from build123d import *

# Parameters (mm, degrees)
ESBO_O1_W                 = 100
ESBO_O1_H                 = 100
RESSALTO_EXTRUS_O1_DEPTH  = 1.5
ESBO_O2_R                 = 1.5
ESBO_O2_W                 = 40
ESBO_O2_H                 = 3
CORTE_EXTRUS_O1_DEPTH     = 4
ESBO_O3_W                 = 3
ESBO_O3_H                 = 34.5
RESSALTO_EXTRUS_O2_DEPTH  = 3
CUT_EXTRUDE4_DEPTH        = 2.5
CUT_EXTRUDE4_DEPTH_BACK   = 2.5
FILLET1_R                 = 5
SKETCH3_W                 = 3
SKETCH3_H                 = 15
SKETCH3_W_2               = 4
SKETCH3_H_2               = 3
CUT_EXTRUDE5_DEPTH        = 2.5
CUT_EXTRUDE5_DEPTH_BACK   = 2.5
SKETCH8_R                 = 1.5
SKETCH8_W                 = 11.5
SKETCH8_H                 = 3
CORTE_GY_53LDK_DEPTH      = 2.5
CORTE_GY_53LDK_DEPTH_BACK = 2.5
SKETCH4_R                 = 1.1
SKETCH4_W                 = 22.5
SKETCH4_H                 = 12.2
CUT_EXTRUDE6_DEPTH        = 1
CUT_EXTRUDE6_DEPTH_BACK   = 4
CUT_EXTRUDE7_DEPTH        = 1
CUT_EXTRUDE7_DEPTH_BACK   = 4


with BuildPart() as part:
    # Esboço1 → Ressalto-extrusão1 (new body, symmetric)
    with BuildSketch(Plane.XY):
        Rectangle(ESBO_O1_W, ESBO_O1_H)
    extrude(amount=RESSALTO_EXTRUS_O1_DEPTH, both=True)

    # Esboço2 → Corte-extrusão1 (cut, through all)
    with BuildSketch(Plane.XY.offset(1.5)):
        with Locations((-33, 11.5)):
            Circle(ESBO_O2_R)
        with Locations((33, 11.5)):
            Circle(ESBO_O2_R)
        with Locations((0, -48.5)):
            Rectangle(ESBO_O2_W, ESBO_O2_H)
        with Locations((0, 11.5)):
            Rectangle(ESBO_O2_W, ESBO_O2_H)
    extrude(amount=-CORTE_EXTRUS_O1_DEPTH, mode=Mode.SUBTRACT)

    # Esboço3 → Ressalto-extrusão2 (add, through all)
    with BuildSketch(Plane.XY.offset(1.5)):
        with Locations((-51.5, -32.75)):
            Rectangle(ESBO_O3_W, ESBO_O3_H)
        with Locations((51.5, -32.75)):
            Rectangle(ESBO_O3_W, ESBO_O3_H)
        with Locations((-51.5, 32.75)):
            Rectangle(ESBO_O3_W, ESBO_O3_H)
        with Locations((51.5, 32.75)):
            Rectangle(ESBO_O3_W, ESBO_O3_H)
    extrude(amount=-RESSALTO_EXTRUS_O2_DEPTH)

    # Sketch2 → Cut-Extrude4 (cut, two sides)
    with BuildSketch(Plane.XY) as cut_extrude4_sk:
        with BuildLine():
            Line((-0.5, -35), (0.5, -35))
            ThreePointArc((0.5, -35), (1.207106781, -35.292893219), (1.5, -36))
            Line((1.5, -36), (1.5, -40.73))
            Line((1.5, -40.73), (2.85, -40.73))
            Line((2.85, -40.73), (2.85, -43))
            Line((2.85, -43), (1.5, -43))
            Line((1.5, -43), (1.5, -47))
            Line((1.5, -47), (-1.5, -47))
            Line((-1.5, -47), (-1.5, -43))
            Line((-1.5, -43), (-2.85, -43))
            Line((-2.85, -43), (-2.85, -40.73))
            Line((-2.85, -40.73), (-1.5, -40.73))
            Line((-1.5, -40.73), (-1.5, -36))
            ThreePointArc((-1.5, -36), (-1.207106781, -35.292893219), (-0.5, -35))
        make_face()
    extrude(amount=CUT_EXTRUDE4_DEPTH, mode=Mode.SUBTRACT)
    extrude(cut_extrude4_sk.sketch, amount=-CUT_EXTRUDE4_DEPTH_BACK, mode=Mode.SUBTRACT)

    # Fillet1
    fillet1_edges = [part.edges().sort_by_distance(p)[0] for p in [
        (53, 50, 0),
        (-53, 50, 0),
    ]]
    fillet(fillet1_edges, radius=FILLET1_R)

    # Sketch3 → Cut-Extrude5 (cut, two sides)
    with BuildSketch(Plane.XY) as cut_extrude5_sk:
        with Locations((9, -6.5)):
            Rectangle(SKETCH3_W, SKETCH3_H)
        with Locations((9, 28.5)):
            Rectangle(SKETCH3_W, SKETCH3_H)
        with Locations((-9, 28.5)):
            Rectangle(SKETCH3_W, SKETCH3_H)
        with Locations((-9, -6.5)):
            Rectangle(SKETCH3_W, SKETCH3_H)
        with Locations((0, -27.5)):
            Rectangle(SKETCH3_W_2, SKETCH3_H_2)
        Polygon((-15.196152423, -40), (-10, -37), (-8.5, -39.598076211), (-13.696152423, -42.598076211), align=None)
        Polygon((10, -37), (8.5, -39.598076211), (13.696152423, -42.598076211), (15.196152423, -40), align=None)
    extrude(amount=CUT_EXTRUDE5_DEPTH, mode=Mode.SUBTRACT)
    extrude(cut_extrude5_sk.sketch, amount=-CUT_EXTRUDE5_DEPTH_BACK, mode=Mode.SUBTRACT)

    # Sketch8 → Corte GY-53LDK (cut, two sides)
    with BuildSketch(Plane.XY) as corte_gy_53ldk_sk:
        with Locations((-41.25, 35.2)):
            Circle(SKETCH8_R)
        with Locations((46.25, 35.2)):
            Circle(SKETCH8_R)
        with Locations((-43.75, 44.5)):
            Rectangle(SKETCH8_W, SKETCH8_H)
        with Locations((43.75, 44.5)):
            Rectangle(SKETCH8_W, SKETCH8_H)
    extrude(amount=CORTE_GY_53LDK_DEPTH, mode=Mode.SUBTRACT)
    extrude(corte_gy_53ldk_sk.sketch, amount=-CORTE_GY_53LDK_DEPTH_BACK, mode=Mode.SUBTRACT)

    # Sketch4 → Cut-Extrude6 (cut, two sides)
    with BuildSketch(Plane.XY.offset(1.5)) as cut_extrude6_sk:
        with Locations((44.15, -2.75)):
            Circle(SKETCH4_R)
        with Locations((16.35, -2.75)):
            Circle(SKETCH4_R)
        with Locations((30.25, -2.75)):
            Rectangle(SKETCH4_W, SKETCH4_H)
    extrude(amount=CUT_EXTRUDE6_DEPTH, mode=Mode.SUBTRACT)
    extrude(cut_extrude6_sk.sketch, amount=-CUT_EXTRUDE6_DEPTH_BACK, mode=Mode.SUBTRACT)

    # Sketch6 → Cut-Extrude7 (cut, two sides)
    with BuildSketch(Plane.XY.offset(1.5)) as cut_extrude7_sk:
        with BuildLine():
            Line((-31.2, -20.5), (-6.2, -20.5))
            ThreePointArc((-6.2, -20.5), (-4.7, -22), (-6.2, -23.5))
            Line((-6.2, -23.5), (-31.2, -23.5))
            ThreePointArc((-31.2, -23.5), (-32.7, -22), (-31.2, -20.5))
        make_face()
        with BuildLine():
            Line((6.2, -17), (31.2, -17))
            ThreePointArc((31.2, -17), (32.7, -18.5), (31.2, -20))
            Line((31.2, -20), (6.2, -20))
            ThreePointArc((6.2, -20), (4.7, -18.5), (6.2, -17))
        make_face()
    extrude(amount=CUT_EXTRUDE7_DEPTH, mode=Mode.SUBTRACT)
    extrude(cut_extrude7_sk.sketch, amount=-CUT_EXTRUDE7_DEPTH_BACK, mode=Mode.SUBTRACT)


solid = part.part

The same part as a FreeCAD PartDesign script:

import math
import FreeCAD as App
import Part
import Sketcher
from FreeCAD import Vector
Q = App.Units.Quantity


def edges_at(feature, points):
    """Names of the edges that pass closest to the given points."""
    edges = feature.Shape.Edges
    near = lambda p: min(range(len(edges)), key=lambda i: edges[i].distToShape(Part.Vertex(*p))[0])
    return sorted({f"Edge{near(p) + 1}" for p in points})


def add_polygon(sketch, points):
    """Adds a closed chain of lines whose ends are joined by coincident constraints."""
    first, n = sketch.GeometryCount, len(points)
    for a, b in zip(points, points[1:] + points[:1]):
        sketch.addGeometry(Part.LineSegment(App.Vector(*a, 0), App.Vector(*b, 0)), False)
    for i in range(n):
        sketch.addConstraint(Sketcher.Constraint("Coincident", first + i, 2, first + (i + 1) % n, 1))

doc = App.newDocument("Part")
body = doc.addObject("PartDesign::Body", "Body")

# Sketch on XY plane
sketch1 = doc.addObject("Sketcher::SketchObject", "Sketch")
body.addObject(sketch1)
sketch1.AttachmentSupport = (doc.XY_Plane, [""])
sketch1.MapMode = "FlatFace"
add_polygon(sketch1, [(-50, 50), (-50, -50), (50, -50), (50, 50)])  # lines 0-3
sketch1.addConstraint([
    Sketcher.Constraint("Vertical", 0),
    Sketcher.Constraint("Horizontal", 1),
    Sketcher.Constraint("Vertical", 2),
    Sketcher.Constraint("Horizontal", 3),
    Sketcher.Constraint("Symmetric", 0, 2, 2, 2, -1, 1),
    Sketcher.Constraint("Equal", 3, 0),
    Sketcher.Constraint("DistanceX", 1, 1, 1, 2, 100.0),
])
pad1 = doc.addObject("PartDesign::Pad", "Pad")
body.addObject(pad1)
pad1.Profile = sketch1
pad1.Length = 3
pad1.Midplane = True

# Sketch on XY plane
sketch2 = doc.addObject("Sketcher::SketchObject", "Sketch001")
body.addObject(sketch2)
sketch2.AttachmentSupport = (doc.XY_Plane, [""])
sketch2.MapMode = "FlatFace"
sketch2.AttachmentOffset = App.Placement(Vector(0, 0, 1.5), App.Rotation())
sketch2.addGeometry(Part.Circle(Vector(-33, 11.5, 0), Vector(0, 0, 1), 1.5), False)  # 0
sketch2.addGeometry(Part.Circle(Vector(33, 11.5, 0), Vector(0, 0, 1), 1.5), False)  # 1
add_polygon(sketch2, [(-20, -47), (-20, -50), (20, -50), (20, -47)])  # lines 2-5
add_polygon(sketch2, [(-20, 13), (-20, 10), (20, 10), (20, 13)])  # lines 6-9
sketch2.addConstraint([
    Sketcher.Constraint("Vertical", 2),
    Sketcher.Constraint("Horizontal", 3),
    Sketcher.Constraint("Vertical", 4),
    Sketcher.Constraint("Horizontal", 5),
    Sketcher.Constraint("Vertical", 6),
    Sketcher.Constraint("Horizontal", 7),
    Sketcher.Constraint("Vertical", 8),
    Sketcher.Constraint("Horizontal", 9),
    Sketcher.Constraint("Equal", 0, 1),
    Sketcher.Constraint("Symmetric", 0, 3, 1, 3, -2),
    Sketcher.Constraint("Vertical", 5, 2, 6, 2),
    Sketcher.Constraint("Vertical", 4, 2, 7, 2),
    Sketcher.Constraint("Equal", 4, 6),
    Sketcher.Constraint("Diameter", 0, 3.0),
    Sketcher.Constraint("DistanceX", 3, 1, 3, 2, 40.0),
    Sketcher.Constraint("DistanceY", 2, 2, 2, 1, 3.0),
    Sketcher.Constraint("DistanceX", 0, 3, -1, 1, 33.0),
    Sketcher.Constraint("DistanceX", 2, 2, -1, 1, 20.0),
    Sketcher.Constraint("DistanceY", 2, 2, -1, 1, 50.0),
    Sketcher.Constraint("DistanceY", -1, 1, 6, 2, 10.0),
    Sketcher.Constraint("DistanceY", -1, 1, 0, 3, 11.5),
])
pocket1 = doc.addObject("PartDesign::Pocket", "Pocket")
body.addObject(pocket1)
pocket1.Profile = sketch2
pocket1.Type = "ThroughAll"

# Sketch on XY plane
sketch3 = doc.addObject("Sketcher::SketchObject", "Sketch002")
body.addObject(sketch3)
sketch3.AttachmentSupport = (doc.XY_Plane, [""])
sketch3.MapMode = "FlatFace"
sketch3.AttachmentOffset = App.Placement(Vector(0, 0, 1.5), App.Rotation())
add_polygon(sketch3, [(-53, -15.5), (-53, -50), (-50, -50), (-50, -15.5)])  # lines 0-3
add_polygon(sketch3, [(50, -15.5), (50, -50), (53, -50), (53, -15.5)])  # lines 4-7
add_polygon(sketch3, [(-53, 50), (-53, 15.5), (-50, 15.5), (-50, 50)])  # lines 8-11
add_polygon(sketch3, [(50, 50), (50, 15.5), (53, 15.5), (53, 50)])  # lines 12-15
sketch3.addConstraint([
    Sketcher.Constraint("Vertical", 0),
    Sketcher.Constraint("Horizontal", 1),
    Sketcher.Constraint("Vertical", 2),
    Sketcher.Constraint("Horizontal", 3),
    Sketcher.Constraint("Vertical", 4),
    Sketcher.Constraint("Horizontal", 5),
    Sketcher.Constraint("Vertical", 6),
    Sketcher.Constraint("Horizontal", 7),
    Sketcher.Constraint("Vertical", 8),
    Sketcher.Constraint("Horizontal", 9),
    Sketcher.Constraint("Vertical", 10),
    Sketcher.Constraint("Horizontal", 11),
    Sketcher.Constraint("Vertical", 12),
    Sketcher.Constraint("Horizontal", 13),
    Sketcher.Constraint("Vertical", 14),
    Sketcher.Constraint("Horizontal", 15),
    Sketcher.Constraint("Symmetric", 6, 2, 8, 2, -1, 1),
    Sketcher.Constraint("Symmetric", 4, 2, 10, 2, -1, 1),
    Sketcher.Constraint("Symmetric", 2, 2, 12, 2, -1, 1),
    Sketcher.Constraint("Symmetric", 0, 2, 14, 2, -1, 1),
    Sketcher.Constraint("Symmetric", 1, 2, 4, 2, -2),
    Sketcher.Constraint("Symmetric", 3, 2, 6, 2, -2),
    Sketcher.Constraint("DistanceX", 1, 1, 1, 2, 3.0),
    Sketcher.Constraint("DistanceY", 0, 2, 0, 1, 34.5),
    Sketcher.Constraint("DistanceX", 0, 2, -1, 1, 53.0),
    Sketcher.Constraint("DistanceY", 0, 2, -1, 1, 50.0),
])
pad2 = doc.addObject("PartDesign::Pad", "Pad001")
body.addObject(pad2)
pad2.Profile = sketch3
pad2.Type = "UpToLast"
pad2.Reversed = True

# Sketch on XY plane
sketch4 = doc.addObject("Sketcher::SketchObject", "Sketch003")
body.addObject(sketch4)
sketch4.AttachmentSupport = (doc.XY_Plane, [""])
sketch4.MapMode = "FlatFace"
sketch4.addGeometry([
    Part.LineSegment(Vector(0.5, -35, 0), Vector(-0.5, -35, 0)),  # 0
    Part.ArcOfCircle(Part.Circle(Vector(-0.5, -36, 0), Vector(0, 0, 1), 1), math.radians(90), math.radians(180)),  # 1
    Part.LineSegment(Vector(-1.5, -36, 0), Vector(-1.5, -40.7, 0)),  # 2
    Part.LineSegment(Vector(-1.5, -40.7, 0), Vector(-2.9, -40.7, 0)),  # 3
    Part.LineSegment(Vector(-2.9, -40.7, 0), Vector(-2.9, -43, 0)),  # 4
    Part.LineSegment(Vector(-2.9, -43, 0), Vector(-1.5, -43, 0)),  # 5
    Part.LineSegment(Vector(-1.5, -43, 0), Vector(-1.5, -47, 0)),  # 6
    Part.LineSegment(Vector(-1.5, -47, 0), Vector(1.5, -47, 0)),  # 7
    Part.LineSegment(Vector(1.5, -47, 0), Vector(1.5, -43, 0)),  # 8
    Part.LineSegment(Vector(1.5, -43, 0), Vector(2.9, -43, 0)),  # 9
    Part.LineSegment(Vector(2.9, -43, 0), Vector(2.9, -40.7, 0)),  # 10
    Part.LineSegment(Vector(2.9, -40.7, 0), Vector(1.5, -40.7, 0)),  # 11
    Part.LineSegment(Vector(1.5, -40.7, 0), Vector(1.5, -36, 0)),  # 12
    Part.ArcOfCircle(Part.Circle(Vector(0.5, -36, 0), Vector(0, 0, 1), 1), math.radians(0), math.radians(90)),  # 13
], False)
sketch4.addConstraint([
    Sketcher.Constraint("Tangent", 0, 2, 1, 1),
    Sketcher.Constraint("Tangent", 1, 2, 2, 1),
    Sketcher.Constraint("Coincident", 2, 2, 3, 1),
    Sketcher.Constraint("Coincident", 3, 2, 4, 1),
    Sketcher.Constraint("Coincident", 4, 2, 5, 1),
    Sketcher.Constraint("Coincident", 5, 2, 6, 1),
    Sketcher.Constraint("Coincident", 6, 2, 7, 1),
    Sketcher.Constraint("Coincident", 7, 2, 8, 1),
    Sketcher.Constraint("Coincident", 8, 2, 9, 1),
    Sketcher.Constraint("Coincident", 9, 2, 10, 1),
    Sketcher.Constraint("Coincident", 10, 2, 11, 1),
    Sketcher.Constraint("Coincident", 11, 2, 12, 1),
    Sketcher.Constraint("Tangent", 12, 2, 13, 1),
    Sketcher.Constraint("Tangent", 13, 2, 0, 1),
    Sketcher.Constraint("Horizontal", 0),
    Sketcher.Constraint("Vertical", 2),
    Sketcher.Constraint("Horizontal", 3),
    Sketcher.Constraint("Vertical", 4),
    Sketcher.Constraint("Horizontal", 5),
    Sketcher.Constraint("Vertical", 6),
    Sketcher.Constraint("Horizontal", 7),
    Sketcher.Constraint("Vertical", 8),
    Sketcher.Constraint("Horizontal", 9),
    Sketcher.Constraint("Vertical", 10),
    Sketcher.Constraint("Horizontal", 11),
    Sketcher.Constraint("Vertical", 12),
    Sketcher.Constraint("Equal", 1, 13),
    Sketcher.Constraint("Symmetric", 5, 2, 8, 2, -2),
    Sketcher.Constraint("Symmetric", 3, 2, 10, 2, -2),
    Sketcher.Constraint("Vertical", 2, 2, 5, 2),
    Sketcher.Constraint("Vertical", 8, 2, 11, 2),
    Sketcher.Constraint("Radius", 1, 1.0),
    Sketcher.Constraint("DistanceX", 0, 2, 0, 1, 1.0),
    Sketcher.Constraint("DistanceY", 6, 2, 6, 1, 4.0),
    Sketcher.Constraint("DistanceY", 1, 3, -1, 1, 36.0),
    Sketcher.Constraint("DistanceY", 4, 2, -1, 1, 43.0),
    Sketcher.Constraint("DistanceX", 3, 2, 3, 1, 1.35),
    Sketcher.Constraint("DistanceY", 2, 2, 2, 1, 4.73),
])
pocket2 = doc.addObject("PartDesign::Pocket", "Pocket001")
body.addObject(pocket2)
pocket2.Profile = sketch4
pocket2.Type = "ThroughAll"
pocket2.Midplane = True
doc.recompute()

fillet = doc.addObject("PartDesign::Fillet", "Fillet")
body.addObject(fillet)
fillet.Base = (pocket2, edges_at(pocket2, [(53, 50, 0), (-53, 50, 0)]))
fillet.Radius = 5

# Sketch on XY plane
sketch5 = doc.addObject("Sketcher::SketchObject", "Sketch004")
body.addObject(sketch5)
sketch5.AttachmentSupport = (doc.XY_Plane, [""])
sketch5.MapMode = "FlatFace"
add_polygon(sketch5, [(7.5, 1), (7.5, -14), (10.5, -14), (10.5, 1)])  # lines 0-3
add_polygon(sketch5, [(7.5, 36), (7.5, 21), (10.5, 21), (10.5, 36)])  # lines 4-7
add_polygon(sketch5, [(-10.5, 36), (-10.5, 21), (-7.5, 21), (-7.5, 36)])  # lines 8-11
add_polygon(sketch5, [(-10.5, 1), (-10.5, -14), (-7.5, -14), (-7.5, 1)])  # lines 12-15
add_polygon(sketch5, [(-2, -26), (-2, -29), (2, -29), (2, -26)])  # lines 16-19
add_polygon(sketch5, [(-10, -37), (-15.2, -40), (-13.7, -42.6), (-8.5, -39.6)])  # lines 20-23
add_polygon(sketch5, [(10, -37), (8.5, -39.6), (13.7, -42.6), (15.2, -40)])  # lines 24-27
sketch5.addConstraint([
    Sketcher.Constraint("Vertical", 0),
    Sketcher.Constraint("Horizontal", 1),
    Sketcher.Constraint("Vertical", 2),
    Sketcher.Constraint("Horizontal", 3),
    Sketcher.Constraint("Vertical", 4),
    Sketcher.Constraint("Horizontal", 5),
    Sketcher.Constraint("Vertical", 6),
    Sketcher.Constraint("Horizontal", 7),
    Sketcher.Constraint("Vertical", 8),
    Sketcher.Constraint("Horizontal", 9),
    Sketcher.Constraint("Vertical", 10),
    Sketcher.Constraint("Horizontal", 11),
    Sketcher.Constraint("Vertical", 12),
    Sketcher.Constraint("Horizontal", 13),
    Sketcher.Constraint("Vertical", 14),
    Sketcher.Constraint("Horizontal", 15),
    Sketcher.Constraint("Vertical", 16),
    Sketcher.Constraint("Horizontal", 17),
    Sketcher.Constraint("Vertical", 18),
    Sketcher.Constraint("Horizontal", 19),
    Sketcher.Constraint("Symmetric", 5, 2, 8, 2, -2),
    Sketcher.Constraint("Symmetric", 7, 2, 10, 2, -2),
    Sketcher.Constraint("Symmetric", 1, 2, 12, 2, -2),
    Sketcher.Constraint("Symmetric", 3, 2, 14, 2, -2),
    Sketcher.Constraint("Symmetric", 22, 2, 24, 2, -2),
    Sketcher.Constraint("Symmetric", 21, 2, 25, 2, -2),
    Sketcher.Constraint("Symmetric", 20, 2, 26, 2, -2),
    Sketcher.Constraint("Symmetric", 23, 2, 27, 2, -2),
    Sketcher.Constraint("Perpendicular", 20, 21),
    Sketcher.Constraint("Perpendicular", 21, 22),
    Sketcher.Constraint("Perpendicular", 22, 23),
    Sketcher.Constraint("Vertical", 3, 2, 4, 2),
    Sketcher.Constraint("Vertical", 2, 2, 5, 2),
    Sketcher.Constraint("Equal", 2, 4),
    Sketcher.Constraint("Equal", 15, 16),
    Sketcher.Constraint("DistanceX", 1, 1, 1, 2, 3.0),
    Sketcher.Constraint("DistanceX", 17, 1, 17, 2, 4.0),
    Sketcher.Constraint("DistanceY", 0, 2, 0, 1, 15.0),
    Sketcher.Constraint("Angle", 20, Q("-150 deg")),
    Sketcher.Constraint("Distance", 20, 6.0),
    Sketcher.Constraint("Distance", 21, 3.0),
    Sketcher.Constraint("DistanceY", 0, 2, -1, 1, 14.0),
    Sketcher.Constraint("DistanceY", -1, 1, 4, 2, 21.0),
    Sketcher.Constraint("DistanceX", 16, 2, -1, 1, 2.0),
    Sketcher.Constraint("DistanceY", 16, 2, -1, 1, 29.0),
    Sketcher.Constraint("DistanceY", 20, 2, -1, 1, 40.0),
    Sketcher.Constraint("DistanceX", 23, 2, -1, 1, 10.0),
    Sketcher.Constraint("DistanceX", 8, 2, 4, 2, 18.0),
])
pocket3 = doc.addObject("PartDesign::Pocket", "Pocket002")
body.addObject(pocket3)
pocket3.Profile = sketch5
pocket3.Type = "ThroughAll"
pocket3.Midplane = True

# Sketch on XY plane
sketch6 = doc.addObject("Sketcher::SketchObject", "Sketch005")
body.addObject(sketch6)
sketch6.AttachmentSupport = (doc.XY_Plane, [""])
sketch6.MapMode = "FlatFace"
sketch6.addGeometry(Part.Circle(Vector(-41.2, 35.2, 0), Vector(0, 0, 1), 1.5), False)  # 0
sketch6.addGeometry(Part.Circle(Vector(46.2, 35.2, 0), Vector(0, 0, 1), 1.5), False)  # 1
add_polygon(sketch6, [(-49.5, 46), (-49.5, 43), (-38, 43), (-38, 46)])  # lines 2-5
add_polygon(sketch6, [(38, 46), (38, 43), (49.5, 43), (49.5, 46)])  # lines 6-9
sketch6.addConstraint([
    Sketcher.Constraint("Vertical", 2),
    Sketcher.Constraint("Horizontal", 3),
    Sketcher.Constraint("Vertical", 4),
    Sketcher.Constraint("Horizontal", 5),
    Sketcher.Constraint("Vertical", 6),
    Sketcher.Constraint("Horizontal", 7),
    Sketcher.Constraint("Vertical", 8),
    Sketcher.Constraint("Horizontal", 9),
    Sketcher.Constraint("Equal", 0, 1),
    Sketcher.Constraint("Symmetric", 3, 2, 6, 2, -2),
    Sketcher.Constraint("Symmetric", 5, 2, 8, 2, -2),
    Sketcher.Constraint("Horizontal", 0, 3, 1, 3),
    Sketcher.Constraint("Diameter", 0, 3.0),
    Sketcher.Constraint("DistanceY", 2, 2, 2, 1, 3.0),
    Sketcher.Constraint("DistanceX", 3, 1, 3, 2, 11.5),
    Sketcher.Constraint("DistanceY", -1, 1, 2, 2, 43.0),
    Sketcher.Constraint("DistanceX", 3, 2, -1, 1, 38.0),
    Sketcher.Constraint("DistanceY", -1, 1, 0, 3, 35.2),
    Sketcher.Constraint("DistanceX", 0, 3, 1, 3, 87.5),
    Sketcher.Constraint("DistanceX", 0, 3, -1, 1, 41.25),
])
pocket4 = doc.addObject("PartDesign::Pocket", "Pocket003")
body.addObject(pocket4)
pocket4.Profile = sketch6
pocket4.Type = "ThroughAll"
pocket4.Midplane = True

# Sketch on XY plane
sketch7 = doc.addObject("Sketcher::SketchObject", "Sketch006")
body.addObject(sketch7)
sketch7.AttachmentSupport = (doc.XY_Plane, [""])
sketch7.MapMode = "FlatFace"
sketch7.AttachmentOffset = App.Placement(Vector(0, 0, 1.5), App.Rotation())
sketch7.addGeometry(Part.Circle(Vector(44.1, -2.8, 0), Vector(0, 0, 1), 1.1), False)  # 0
sketch7.addGeometry(Part.Circle(Vector(16.4, -2.8, 0), Vector(0, 0, 1), 1.1), False)  # 1
add_polygon(sketch7, [(19, 3.4), (19, -8.8), (41.5, -8.8), (41.5, 3.4)])  # lines 2-5
sketch7.addConstraint([
    Sketcher.Constraint("Vertical", 2),
    Sketcher.Constraint("Horizontal", 3),
    Sketcher.Constraint("Vertical", 4),
    Sketcher.Constraint("Horizontal", 5),
    Sketcher.Constraint("Equal", 0, 1),
    Sketcher.Constraint("Horizontal", 0, 3, 1, 3),
    Sketcher.Constraint("Diameter", 0, 2.2),
    Sketcher.Constraint("DistanceX", 3, 1, 3, 2, 22.5),
    Sketcher.Constraint("DistanceY", 2, 2, 2, 1, 12.2),
    Sketcher.Constraint("DistanceX", -1, 1, 2, 2, 19.0),
    Sketcher.Constraint("DistanceX", 1, 3, 0, 3, 27.8),
    Sketcher.Constraint("DistanceY", 2, 2, 1, 3, 6.1),
    Sketcher.Constraint("DistanceX", -1, 1, 0, 3, 44.15),
    Sketcher.Constraint("DistanceY", 0, 3, -1, 1, 2.75),
])
pocket5 = doc.addObject("PartDesign::Pocket", "Pocket004")
body.addObject(pocket5)
pocket5.Profile = sketch7
pocket5.Type = "ThroughAll"
pocket5.Midplane = True

# Sketch on XY plane
sketch8 = doc.addObject("Sketcher::SketchObject", "Sketch007")
body.addObject(sketch8)
sketch8.AttachmentSupport = (doc.XY_Plane, [""])
sketch8.MapMode = "FlatFace"
sketch8.AttachmentOffset = App.Placement(Vector(0, 0, 1.5), App.Rotation())
sketch8.addGeometry([
    Part.LineSegment(Vector(-6.2, -20.5, 0), Vector(-31.2, -20.5, 0)),  # 0
    Part.ArcOfCircle(Part.Circle(Vector(-31.2, -22, 0), Vector(0, 0, 1), 1.5), math.radians(90), math.radians(270)),  # 1
    Part.LineSegment(Vector(-31.2, -23.5, 0), Vector(-6.2, -23.5, 0)),  # 2
    Part.ArcOfCircle(Part.Circle(Vector(-6.2, -22, 0), Vector(0, 0, 1), 1.5), math.radians(-90), math.radians(90)),  # 3
    Part.LineSegment(Vector(31.2, -17, 0), Vector(6.2, -17, 0)),  # 4
    Part.ArcOfCircle(Part.Circle(Vector(6.2, -18.5, 0), Vector(0, 0, 1), 1.5), math.radians(90), math.radians(270)),  # 5
    Part.LineSegment(Vector(6.2, -20, 0), Vector(31.2, -20, 0)),  # 6
    Part.ArcOfCircle(Part.Circle(Vector(31.2, -18.5, 0), Vector(0, 0, 1), 1.5), math.radians(-90), math.radians(90)),  # 7
], False)
sketch8.addConstraint([
    Sketcher.Constraint("Tangent", 0, 2, 1, 1),
    Sketcher.Constraint("Tangent", 1, 2, 2, 1),
    Sketcher.Constraint("Tangent", 2, 2, 3, 1),
    Sketcher.Constraint("Tangent", 3, 2, 0, 1),
    Sketcher.Constraint("Tangent", 4, 2, 5, 1),
    Sketcher.Constraint("Tangent", 5, 2, 6, 1),
    Sketcher.Constraint("Tangent", 6, 2, 7, 1),
    Sketcher.Constraint("Tangent", 7, 2, 4, 1),
    Sketcher.Constraint("Horizontal", 0),
    Sketcher.Constraint("Horizontal", 2),
    Sketcher.Constraint("Horizontal", 4),
    Sketcher.Constraint("Horizontal", 6),
    Sketcher.Constraint("Equal", 3, 5),
    Sketcher.Constraint("Equal", 2, 4),
    Sketcher.Constraint("Radius", 1, 1.5),
    Sketcher.Constraint("DistanceX", 0, 2, 0, 1, 25.0),
    Sketcher.Constraint("DistanceY", 1, 3, -1, 1, 22.0),
    Sketcher.Constraint("DistanceY", 4, 2, -1, 1, 17.0),
    Sketcher.Constraint("DistanceX", 1, 3, -1, 1, 31.2),
    Sketcher.Constraint("DistanceX", -1, 1, 5, 3, 6.2),
])
pocket6 = doc.addObject("PartDesign::Pocket", "Pocket005")
body.addObject(pocket6)
pocket6.Profile = sketch8
pocket6.Type = "ThroughAll"
pocket6.Midplane = True

doc.recompute()
